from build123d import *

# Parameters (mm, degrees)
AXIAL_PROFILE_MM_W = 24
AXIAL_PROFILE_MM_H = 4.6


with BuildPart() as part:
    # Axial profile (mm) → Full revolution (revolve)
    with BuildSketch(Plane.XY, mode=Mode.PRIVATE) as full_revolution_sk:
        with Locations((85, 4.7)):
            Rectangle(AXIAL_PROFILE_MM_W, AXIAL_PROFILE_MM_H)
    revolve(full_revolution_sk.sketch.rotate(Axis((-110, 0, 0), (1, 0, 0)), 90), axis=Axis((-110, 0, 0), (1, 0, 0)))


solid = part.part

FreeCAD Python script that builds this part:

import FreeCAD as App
import Part
import Sketcher
Q = App.Units.Quantity

doc = App.newDocument("Part")
body = doc.addObject("PartDesign::Body", "Body")

sketch1 = body.newObject("Sketcher::SketchObject", "Sketch")
sketch1.AttachmentSupport = (doc.getObject("XY_Plane"), [""])
sketch1.MapMode = "FlatFace"
sketch1.addGeometry([
    Part.LineSegment(App.Vector(73, 7, 0), App.Vector(73, 2.4, 0)),
    Part.LineSegment(App.Vector(73, 2.4, 0), App.Vector(97, 2.4, 0)),
    Part.LineSegment(App.Vector(97, 2.4, 0), App.Vector(97, 7, 0)),
    Part.LineSegment(App.Vector(97, 7, 0), App.Vector(73, 7, 0)),
], False)
sketch1.addConstraint([
    Sketcher.Constraint("Coincident", 0, 2, 1, 1),
    Sketcher.Constraint("Coincident", 1, 2, 2, 1),
    Sketcher.Constraint("Coincident", 2, 2, 3, 1),
    Sketcher.Constraint("Coincident", 3, 2, 0, 1),
    Sketcher.Constraint("Vertical", 0),
    Sketcher.Constraint("Horizontal", 1),
    Sketcher.Constraint("Vertical", 2),
    Sketcher.Constraint("Horizontal", 3),
    Sketcher.Constraint("DistanceX", 1, 1, 1, 2, Q("24 mm")),
    Sketcher.Constraint("DistanceY", 0, 2, 0, 1, Q("4.6 mm")),
    Sketcher.Constraint("DistanceX", -1, 1, 0, 2, Q("73 mm")),
    Sketcher.Constraint("DistanceY", -1, 1, 2, 2, Q("7 mm")),
])
revolution = body.newObject("PartDesign::Revolution", "Revolution")
revolution.Profile = sketch1
revolution.ReferenceAxis = (sketch1, ["H_Axis"])
revolution.Angle = 360

doc.recompute()
